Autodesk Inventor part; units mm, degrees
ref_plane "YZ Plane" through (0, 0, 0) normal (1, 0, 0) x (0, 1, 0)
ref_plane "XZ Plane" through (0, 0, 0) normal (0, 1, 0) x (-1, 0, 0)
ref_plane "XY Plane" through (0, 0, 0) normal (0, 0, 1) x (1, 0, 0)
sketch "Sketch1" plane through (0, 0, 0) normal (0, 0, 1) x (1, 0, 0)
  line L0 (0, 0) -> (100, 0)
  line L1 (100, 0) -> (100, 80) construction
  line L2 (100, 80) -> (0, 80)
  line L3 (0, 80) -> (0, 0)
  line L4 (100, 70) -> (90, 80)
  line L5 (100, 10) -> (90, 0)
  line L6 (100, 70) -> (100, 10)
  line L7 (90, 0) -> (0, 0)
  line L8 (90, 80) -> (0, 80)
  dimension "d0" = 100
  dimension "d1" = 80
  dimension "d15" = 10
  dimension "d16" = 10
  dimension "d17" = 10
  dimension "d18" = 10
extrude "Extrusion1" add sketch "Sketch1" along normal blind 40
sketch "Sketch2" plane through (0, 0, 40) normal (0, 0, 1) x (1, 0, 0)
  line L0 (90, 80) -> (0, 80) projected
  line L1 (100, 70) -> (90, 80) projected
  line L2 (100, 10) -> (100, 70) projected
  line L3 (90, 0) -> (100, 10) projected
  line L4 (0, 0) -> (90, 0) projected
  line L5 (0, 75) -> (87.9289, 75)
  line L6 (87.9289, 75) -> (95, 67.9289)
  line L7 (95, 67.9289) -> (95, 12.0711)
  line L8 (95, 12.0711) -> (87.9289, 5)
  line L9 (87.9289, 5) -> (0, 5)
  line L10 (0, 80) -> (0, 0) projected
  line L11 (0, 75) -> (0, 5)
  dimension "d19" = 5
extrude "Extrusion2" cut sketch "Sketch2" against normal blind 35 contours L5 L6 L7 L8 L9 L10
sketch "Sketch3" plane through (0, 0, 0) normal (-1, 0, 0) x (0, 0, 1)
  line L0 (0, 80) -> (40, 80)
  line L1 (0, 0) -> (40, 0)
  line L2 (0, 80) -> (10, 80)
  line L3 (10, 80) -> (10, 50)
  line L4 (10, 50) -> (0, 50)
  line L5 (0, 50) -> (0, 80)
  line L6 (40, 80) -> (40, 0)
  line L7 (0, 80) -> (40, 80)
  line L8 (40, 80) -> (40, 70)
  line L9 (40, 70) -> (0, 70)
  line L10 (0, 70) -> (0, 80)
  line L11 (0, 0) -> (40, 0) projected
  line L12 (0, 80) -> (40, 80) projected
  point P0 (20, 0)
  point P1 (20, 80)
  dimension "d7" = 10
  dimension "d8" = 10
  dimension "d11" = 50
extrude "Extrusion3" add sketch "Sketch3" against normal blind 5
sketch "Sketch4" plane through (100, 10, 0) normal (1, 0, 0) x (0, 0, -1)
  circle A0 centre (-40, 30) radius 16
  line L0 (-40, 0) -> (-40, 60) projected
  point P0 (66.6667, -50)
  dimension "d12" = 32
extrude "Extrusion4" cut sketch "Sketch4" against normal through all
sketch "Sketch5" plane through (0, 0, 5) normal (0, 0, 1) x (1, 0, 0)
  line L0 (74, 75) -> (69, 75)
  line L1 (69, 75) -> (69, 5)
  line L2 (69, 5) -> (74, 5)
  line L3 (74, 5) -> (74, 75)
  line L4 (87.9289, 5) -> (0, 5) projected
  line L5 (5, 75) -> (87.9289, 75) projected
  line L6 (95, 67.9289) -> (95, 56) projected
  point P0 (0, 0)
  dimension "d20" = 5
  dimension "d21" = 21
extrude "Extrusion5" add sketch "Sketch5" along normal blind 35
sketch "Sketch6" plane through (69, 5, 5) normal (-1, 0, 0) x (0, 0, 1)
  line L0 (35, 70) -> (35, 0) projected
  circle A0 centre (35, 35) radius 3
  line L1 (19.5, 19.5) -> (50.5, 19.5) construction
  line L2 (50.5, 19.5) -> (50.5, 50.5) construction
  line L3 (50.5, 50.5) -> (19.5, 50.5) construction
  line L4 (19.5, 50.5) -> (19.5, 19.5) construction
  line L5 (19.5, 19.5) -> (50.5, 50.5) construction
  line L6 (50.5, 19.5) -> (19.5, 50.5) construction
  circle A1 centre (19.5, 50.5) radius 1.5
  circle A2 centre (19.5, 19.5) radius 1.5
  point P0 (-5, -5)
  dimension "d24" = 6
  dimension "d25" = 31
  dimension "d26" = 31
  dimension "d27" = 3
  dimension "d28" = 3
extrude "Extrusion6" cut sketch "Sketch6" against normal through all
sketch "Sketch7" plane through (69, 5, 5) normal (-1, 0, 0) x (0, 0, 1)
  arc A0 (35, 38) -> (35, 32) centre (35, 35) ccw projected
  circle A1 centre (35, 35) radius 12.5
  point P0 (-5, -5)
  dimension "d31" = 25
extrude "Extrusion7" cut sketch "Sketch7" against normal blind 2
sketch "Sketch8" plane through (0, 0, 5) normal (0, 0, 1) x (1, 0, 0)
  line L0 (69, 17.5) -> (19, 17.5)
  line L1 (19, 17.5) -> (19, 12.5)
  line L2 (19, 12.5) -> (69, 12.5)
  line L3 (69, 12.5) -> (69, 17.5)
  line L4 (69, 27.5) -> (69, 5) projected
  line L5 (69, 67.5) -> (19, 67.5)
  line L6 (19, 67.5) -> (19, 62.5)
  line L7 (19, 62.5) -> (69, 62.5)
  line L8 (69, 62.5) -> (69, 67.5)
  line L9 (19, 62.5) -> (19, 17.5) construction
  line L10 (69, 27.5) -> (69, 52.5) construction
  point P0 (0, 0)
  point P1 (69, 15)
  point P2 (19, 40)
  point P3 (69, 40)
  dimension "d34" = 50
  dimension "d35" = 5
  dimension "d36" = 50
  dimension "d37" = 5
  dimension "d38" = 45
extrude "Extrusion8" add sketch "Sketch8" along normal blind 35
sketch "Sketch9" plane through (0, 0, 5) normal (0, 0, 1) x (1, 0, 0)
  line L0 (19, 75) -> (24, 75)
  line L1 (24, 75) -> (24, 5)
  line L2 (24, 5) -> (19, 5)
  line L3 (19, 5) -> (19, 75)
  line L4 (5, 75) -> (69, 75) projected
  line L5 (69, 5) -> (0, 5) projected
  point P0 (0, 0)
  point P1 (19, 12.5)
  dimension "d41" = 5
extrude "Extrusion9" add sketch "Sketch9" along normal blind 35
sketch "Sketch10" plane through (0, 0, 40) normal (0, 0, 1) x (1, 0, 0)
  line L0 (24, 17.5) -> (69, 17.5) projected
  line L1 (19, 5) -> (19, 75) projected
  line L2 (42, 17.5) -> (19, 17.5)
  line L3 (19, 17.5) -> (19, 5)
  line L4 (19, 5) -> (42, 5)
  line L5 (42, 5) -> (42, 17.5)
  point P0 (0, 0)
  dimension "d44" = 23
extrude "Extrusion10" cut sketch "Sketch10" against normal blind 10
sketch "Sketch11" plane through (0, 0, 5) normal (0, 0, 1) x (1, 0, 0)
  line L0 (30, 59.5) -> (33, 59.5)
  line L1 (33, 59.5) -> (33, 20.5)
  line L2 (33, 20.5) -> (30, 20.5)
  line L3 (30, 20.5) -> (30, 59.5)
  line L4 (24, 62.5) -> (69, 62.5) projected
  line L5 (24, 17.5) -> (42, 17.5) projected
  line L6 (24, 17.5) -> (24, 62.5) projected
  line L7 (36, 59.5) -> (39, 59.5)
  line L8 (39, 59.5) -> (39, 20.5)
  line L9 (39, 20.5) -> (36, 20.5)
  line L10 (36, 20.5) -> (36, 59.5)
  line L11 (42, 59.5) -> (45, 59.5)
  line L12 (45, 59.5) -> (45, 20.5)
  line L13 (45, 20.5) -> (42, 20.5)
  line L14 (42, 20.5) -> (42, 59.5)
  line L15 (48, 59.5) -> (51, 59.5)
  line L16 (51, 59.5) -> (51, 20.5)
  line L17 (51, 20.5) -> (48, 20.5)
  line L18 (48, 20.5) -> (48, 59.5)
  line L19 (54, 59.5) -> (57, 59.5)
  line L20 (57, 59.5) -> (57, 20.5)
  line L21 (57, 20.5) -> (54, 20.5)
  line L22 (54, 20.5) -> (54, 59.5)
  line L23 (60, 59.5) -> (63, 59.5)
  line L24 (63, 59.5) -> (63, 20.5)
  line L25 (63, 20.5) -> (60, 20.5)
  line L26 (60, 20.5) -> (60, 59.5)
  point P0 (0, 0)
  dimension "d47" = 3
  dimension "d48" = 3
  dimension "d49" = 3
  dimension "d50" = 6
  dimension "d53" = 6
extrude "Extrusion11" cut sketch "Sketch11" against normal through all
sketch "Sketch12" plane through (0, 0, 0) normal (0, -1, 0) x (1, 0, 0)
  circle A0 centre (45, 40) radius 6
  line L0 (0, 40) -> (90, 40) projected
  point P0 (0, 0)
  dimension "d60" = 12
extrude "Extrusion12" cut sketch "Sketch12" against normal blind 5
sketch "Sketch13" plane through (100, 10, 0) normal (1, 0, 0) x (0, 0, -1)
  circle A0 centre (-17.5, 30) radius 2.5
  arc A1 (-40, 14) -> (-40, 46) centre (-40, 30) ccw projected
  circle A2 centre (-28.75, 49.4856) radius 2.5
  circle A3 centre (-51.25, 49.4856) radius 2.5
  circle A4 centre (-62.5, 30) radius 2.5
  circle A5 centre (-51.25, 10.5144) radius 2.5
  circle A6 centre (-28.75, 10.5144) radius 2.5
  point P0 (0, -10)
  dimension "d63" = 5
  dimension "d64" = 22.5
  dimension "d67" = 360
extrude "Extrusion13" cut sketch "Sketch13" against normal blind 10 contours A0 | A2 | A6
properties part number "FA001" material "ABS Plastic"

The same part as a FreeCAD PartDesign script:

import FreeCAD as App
import Part
import Sketcher
Q = App.Units.Quantity

doc = App.newDocument("Part")
params = doc.addObject("Spreadsheet::Sheet", "Params")
for row, (alias, value) in enumerate([
    ("sketch1_height", "80 mm"),
    ("pad1_length", "40 mm"),
    ("sketch2_height", "70 mm"),
    ("sketch2_length", "10 mm"),
    ("pocket1_length", "35 mm"),
    ("sketch3_width", "10 mm"),
    ("sketch3_width2", "30 mm"),
    ("pad2_length", "5 mm"),
    ("sketch4_diameter", "32 mm"),
    ("sketch5_width", "5 mm"),
    ("sketch5_height", "70 mm"),
    ("pad3_length", "35 mm"),
    ("sketch6_diameter", "6 mm"),
    ("sketch6_diameter2", "3 mm"),
    ("sketch7_diameter", "25 mm"),
    ("pocket4_length", "2 mm"),
    ("sketch8_width", "50 mm"),
    ("sketch8_height", "5 mm"),
    ("pad4_length", "35 mm"),
    ("sketch9_width", "5 mm"),
    ("sketch9_height", "70 mm"),
    ("pad5_length", "35 mm"),
    ("sketch10_width", "23 mm"),
    ("sketch10_height", "12.5 mm"),
    ("pocket5_length", "10 mm"),
    ("sketch11_width", "3 mm"),
    ("sketch11_height", "39 mm"),
    ("sketch12_diameter", "12 mm"),
    ("pocket7_length", "5 mm"),
    ("sketch13_diameter", "5 mm"),
    ("pocket8_length", "10 mm"),
], start=1):
    params.set(f"A{row}", alias)
    params.set(f"B{row}", "=" + value)
    params.setAlias(f"B{row}", alias)

body = doc.addObject("PartDesign::Body", "Body")

# Sketch on XY plane
sketch1 = body.newObject("Sketcher::SketchObject", "Sketch")
sketch1.AttachmentSupport = (doc.getObject("XY_Plane"), [""])
sketch1.MapMode = "FlatFace"
sketch1.addGeometry(Part.LineSegment(App.Vector(0, 80, 0), App.Vector(0, 0, 0)), False)
sketch1.addGeometry(Part.LineSegment(App.Vector(0, 0, 0), App.Vector(90, 0, 0)), False)
sketch1.addGeometry(Part.LineSegment(App.Vector(90, 0, 0), App.Vector(100, 10, 0)), False)
sketch1.addGeometry(Part.LineSegment(App.Vector(100, 10, 0), App.Vector(100, 70, 0)), False)
sketch1.addGeometry(Part.LineSegment(App.Vector(100, 70, 0), App.Vector(90, 80, 0)), False)
sketch1.addGeometry(Part.LineSegment(App.Vector(90, 80, 0), App.Vector(0, 80, 0)), False)
sketch1.addConstraint(Sketcher.Constraint("Coincident", 0, 2, 1, 1))
sketch1.addConstraint(Sketcher.Constraint("Coincident", 1, 2, 2, 1))
sketch1.addConstraint(Sketcher.Constraint("Coincident", 2, 2, 3, 1))
sketch1.addConstraint(Sketcher.Constraint("Coincident", 3, 2, 4, 1))
sketch1.addConstraint(Sketcher.Constraint("Coincident", 4, 2, 5, 1))
sketch1.addConstraint(Sketcher.Constraint("Coincident", 5, 2, 0, 1))
sketch1.addConstraint(Sketcher.Constraint("Vertical", 0))
sketch1.addConstraint(Sketcher.Constraint("Horizontal", 1))
sketch1.addConstraint(Sketcher.Constraint("Vertical", 3))
sketch1.addConstraint(Sketcher.Constraint("Horizontal", 5))
sketch1.addConstraint(Sketcher.Constraint("Coincident", 0, 2, -1, 1))
sketch1.addConstraint(Sketcher.Constraint("Perpendicular", 2, 4))
sketch1.addConstraint(Sketcher.Constraint("Vertical", 1, 2, 4, 2))
sketch1.addConstraint(Sketcher.Constraint("Equal", 2, 4))
sketch1.addConstraint(Sketcher.Constraint("DistanceY", 0, 2, 0, 1, Q("80 mm")))
sketch1.addConstraint(Sketcher.Constraint("DistanceX", -1, 1, 2, 2, Q("100 mm")))
sketch1.addConstraint(Sketcher.Constraint("DistanceY", -1, 1, 2, 2, Q("10 mm")))
sketch1.setExpression("Constraints[14]", "Params.sketch1_height")
pad1 = body.newObject("PartDesign::Pad", "Pad")
pad1.Profile = sketch1
pad1.setExpression("Length", "Params.pad1_length")

# Sketch on XY plane
sketch2 = body.newObject("Sketcher::SketchObject", "Sketch001")
sketch2.AttachmentSupport = (doc.getObject("XY_Plane"), [""])
sketch2.MapMode = "FlatFace"
sketch2.AttachmentOffset = App.Placement(App.Vector(0, 0, 40), App.Rotation())
sketch2.addGeometry(Part.LineSegment(App.Vector(88, 75, 0), App.Vector(0, 75, 0)), False)
sketch2.addGeometry(Part.LineSegment(App.Vector(0, 75, 0), App.Vector(0, 5, 0)), False)
sketch2.addGeometry(Part.LineSegment(App.Vector(0, 5, 0), App.Vector(88, 5, 0)), False)
sketch2.addGeometry(Part.LineSegment(App.Vector(88, 5, 0), App.Vector(95, 12, 0)), False)
sketch2.addGeometry(Part.LineSegment(App.Vector(95, 12, 0), App.Vector(95, 68, 0)), False)
sketch2.addGeometry(Part.LineSegment(App.Vector(95, 68, 0), App.Vector(88, 75, 0)), False)
sketch2.addConstraint(Sketcher.Constraint("Coincident", 0, 2, 1, 1))
sketch2.addConstraint(Sketcher.Constraint("Coincident", 1, 2, 2, 1))
sketch2.addConstraint(Sketcher.Constraint("Coincident", 2, 2, 3, 1))
sketch2.addConstraint(Sketcher.Constraint("Coincident", 3, 2, 4, 1))
sketch2.addConstraint(Sketcher.Constraint("Coincident", 4, 2, 5, 1))
sketch2.addConstraint(Sketcher.Constraint("Coincident", 5, 2, 0, 1))
sketch2.addConstraint(Sketcher.Constraint("Horizontal", 0))
sketch2.addConstraint(Sketcher.Constraint("Vertical", 1))
sketch2.addConstraint(Sketcher.Constraint("Horizontal", 2))
sketch2.addConstraint(Sketcher.Constraint("Vertical", 4))
sketch2.addConstraint(Sketcher.Constraint("PointOnObject", 0, 2, -2))
sketch2.addConstraint(Sketcher.Constraint("Perpendicular", 3, 5))
sketch2.addConstraint(Sketcher.Constraint("Vertical", 2, 2, 5, 2))
sketch2.addConstraint(Sketcher.Constraint("Equal", 3, 5))
sketch2.addConstraint(Sketcher.Constraint("DistanceY", -1, 1, 1, 2, Q("5 mm")))
sketch2.addConstraint(Sketcher.Constraint("DistanceY", 1, 2, 1, 1, Q("70 mm")))
sketch2.addConstraint(Sketcher.Constraint("Distance", 3, Q("10 mm")))
sketch2.addConstraint(Sketcher.Constraint("DistanceX", -1, 1, 3, 2, Q("95 mm")))
sketch2.setExpression("Constraints[15]", "Params.sketch2_height")
sketch2.setExpression("Constraints[16]", "Params.sketch2_length")
pocket1 = body.newObject("PartDesign::Pocket", "Pocket")
pocket1.Profile = sketch2
pocket1.setExpression("Length", "Params.pocket1_length")

# Sketch on YZ plane
sketch3 = body.newObject("Sketcher::SketchObject", "Sketch002")
sketch3.AttachmentSupport = (doc.getObject("YZ_Plane"), [""])
sketch3.MapMode = "FlatFace"
sketch3.addGeometry(Part.LineSegment(App.Vector(80, 0, 0), App.Vector(50, 0, 0)), False)
sketch3.addGeometry(Part.LineSegment(App.Vector(50, 0, 0), App.Vector(50, 10, 0)), False)
sketch3.addGeometry(Part.LineSegment(App.Vector(50, 10, 0), App.Vector(70, 10, 0)), False)
sketch3.addGeometry(Part.LineSegment(App.Vector(70, 10, 0), App.Vector(70, 40, 0)), False)
sketch3.addGeometry(Part.LineSegment(App.Vector(70, 40, 0), App.Vector(80, 40, 0)), False)
sketch3.addGeometry(Part.LineSegment(App.Vector(80, 40, 0), App.Vector(80, 0, 0)), False)
sketch3.addConstraint(Sketcher.Constraint("Coincident", 0, 2, 1, 1))
sketch3.addConstraint(Sketcher.Constraint("Coincident", 1, 2, 2, 1))
sketch3.addConstraint(Sketcher.Constraint("Coincident", 2, 2, 3, 1))
sketch3.addConstraint(Sketcher.Constraint("Coincident", 3, 2, 4, 1))
sketch3.addConstraint(Sketcher.Constraint("Coincident", 4, 2, 5, 1))
sketch3.addConstraint(Sketcher.Constraint("Coincident", 5, 2, 0, 1))
sketch3.addConstraint(Sketcher.Constraint("Horizontal", 0))
sketch3.addConstraint(Sketcher.Constraint("Vertical", 1))
sketch3.addConstraint(Sketcher.Constraint("Horizontal", 2))
sketch3.addConstraint(Sketcher.Constraint("Vertical", 3))
sketch3.addConstraint(Sketcher.Constraint("Horizontal", 4))
sketch3.addConstraint(Sketcher.Constraint("Vertical", 5))
sketch3.addConstraint(Sketcher.Constraint("PointOnObject", 0, 2, -1))
sketch3.addConstraint(Sketcher.Constraint("Equal", 4, 1))
sketch3.addConstraint(Sketcher.Constraint("Equal", 0, 3))
sketch3.addConstraint(Sketcher.Constraint("DistanceX", 4, 1, 4, 2, Q("10 mm")))
sketch3.addConstraint(Sketcher.Constraint("DistanceX", -1, 1, 0, 2, Q("50 mm")))
sketch3.addConstraint(Sketcher.Constraint("DistanceX", 0, 2, 0, 1, Q("30 mm")))
sketch3.setExpression("Constraints[15]", "Params.sketch3_width")
sketch3.setExpression("Constraints[17]", "Params.sketch3_width2")
pad2 = body.newObject("PartDesign::Pad", "Pad001")
pad2.Profile = sketch3
pad2.setExpression("Length", "Params.pad2_length")

# Sketch on YZ plane
sketch4 = body.newObject("Sketcher::SketchObject", "Sketch003")
sketch4.AttachmentSupport = (doc.getObject("YZ_Plane"), [""])
sketch4.MapMode = "FlatFace"
sketch4.AttachmentOffset = App.Placement(App.Vector(0, 0, 100), App.Rotation())
sketch4.addGeometry(Part.Circle(App.Vector(40, 40, 0), App.Vector(0, 0, 1), 16), False)
sketch4.addConstraint(Sketcher.Constraint("Diameter", 0, Q("32 mm")))
sketch4.addConstraint(Sketcher.Constraint("DistanceX", -1, 1, 0, 3, Q("40 mm")))
sketch4.addConstraint(Sketcher.Constraint("DistanceY", -1, 1, 0, 3, Q("40 mm")))
sketch4.setExpression("Constraints[0]", "Params.sketch4_diameter")
pocket2 = body.newObject("PartDesign::Pocket", "Pocket001")
pocket2.Profile = sketch4
pocket2.Type = "ThroughAll"

# Sketch on XY plane
sketch5 = body.newObject("Sketcher::SketchObject", "Sketch004")
sketch5.AttachmentSupport = (doc.getObject("XY_Plane"), [""])
sketch5.MapMode = "FlatFace"
sketch5.AttachmentOffset = App.Placement(App.Vector(0, 0, 5), App.Rotation())
sketch5.addGeometry(Part.LineSegment(App.Vector(74, 5, 0), App.Vector(74, 75, 0)), False)
sketch5.addGeometry(Part.LineSegment(App.Vector(74, 75, 0), App.Vector(69, 75, 0)), False)
sketch5.addGeometry(Part.LineSegment(App.Vector(69, 75, 0), App.Vector(69, 5, 0)), False)
sketch5.addGeometry(Part.LineSegment(App.Vector(69, 5, 0), App.Vector(74, 5, 0)), False)
sketch5.addConstraint(Sketcher.Constraint("Coincident", 0, 2, 1, 1))
sketch5.addConstraint(Sketcher.Constraint("Coincident", 1, 2, 2, 1))
sketch5.addConstraint(Sketcher.Constraint("Coincident", 2, 2, 3, 1))
sketch5.addConstraint(Sketcher.Constraint("Coincident", 3, 2, 0, 1))
sketch5.addConstraint(Sketcher.Constraint("Vertical", 0))
sketch5.addConstraint(Sketcher.Constraint("Horizontal", 1))
sketch5.addConstraint(Sketcher.Constraint("Vertical", 2))
sketch5.addConstraint(Sketcher.Constraint("Horizontal", 3))
sketch5.addConstraint(Sketcher.Constraint("DistanceX", 1, 2, 1, 1, Q("5 mm")))
sketch5.addConstraint(Sketcher.Constraint("DistanceY", -1, 1, 2, 2, Q("5 mm")))
sketch5.addConstraint(Sketcher.Constraint("DistanceY", 0, 1, 0, 2, Q("70 mm")))
sketch5.addConstraint(Sketcher.Constraint("DistanceX", -1, 1, 0, 2, Q("74 mm")))
sketch5.setExpression("Constraints[8]", "Params.sketch5_width")
sketch5.setExpression("Constraints[10]", "Params.sketch5_height")
pad3 = body.newObject("PartDesign::Pad", "Pad002")
pad3.Profile = sketch5
pad3.setExpression("Length", "Params.pad3_length")

# Sketch on YZ plane
sketch6 = body.newObject("Sketcher::SketchObject", "Sketch005")
sketch6.AttachmentSupport = (doc.getObject("YZ_Plane"), [""])
sketch6.MapMode = "FlatFace"
sketch6.AttachmentOffset = App.Placement(App.Vector(0, 0, 69), App.Rotation())
sketch6.addGeometry(Part.Circle(App.Vector(40, 40, 0), App.Vector(0, 0, 1), 3), False)
sketch6.addGeometry(Part.Circle(App.Vector(55.5, 24.5, 0), App.Vector(0, 0, 1), 1.5), False)
sketch6.addGeometry(Part.Circle(App.Vector(24.5, 24.5, 0), App.Vector(0, 0, 1), 1.5), False)
sketch6.addConstraint(Sketcher.Constraint("Equal", 1, 2))
sketch6.addConstraint(Sketcher.Constraint("Horizontal", 1, 3, 2, 3))
sketch6.addConstraint(Sketcher.Constraint("Diameter", 0, Q("6 mm")))
sketch6.addConstraint(Sketcher.Constraint("Diameter", 1, Q("3 mm")))
sketch6.addConstraint(Sketcher.Constraint("DistanceX", 2, 3, 1, 3, Q("31 mm")))
sketch6.addConstraint(Sketcher.Constraint("DistanceX", -1, 1, 0, 3, Q("40 mm")))
sketch6.addConstraint(Sketcher.Constraint("DistanceY", -1, 1, 0, 3, Q("40 mm")))
sketch6.addConstraint(Sketcher.Constraint("DistanceX", -1, 1, 1, 3, Q("55.5 mm")))
sketch6.addConstraint(Sketcher.Constraint("DistanceY", -1, 1, 1, 3, Q("24.5 mm")))
sketch6.setExpression("Constraints[2]", "Params.sketch6_diameter")
sketch6.setExpression("Constraints[3]", "Params.sketch6_diameter2")
pocket3 = body.newObject("PartDesign::Pocket", "Pocket002")
pocket3.Profile = sketch6
pocket3.Type = "ThroughAll"
pocket3.Reversed = True

# Sketch on YZ plane
sketch7 = body.newObject("Sketcher::SketchObject", "Sketch006")
sketch7.AttachmentSupport = (doc.getObject("YZ_Plane"), [""])
sketch7.MapMode = "FlatFace"
sketch7.AttachmentOffset = App.Placement(App.Vector(0, 0, 69), App.Rotation())
sketch7.addGeometry(Part.Circle(App.Vector(40, 40, 0), App.Vector(0, 0, 1), 12), False)
sketch7.addConstraint(Sketcher.Constraint("Diameter", 0, Q("25 mm")))
sketch7.addConstraint(Sketcher.Constraint("DistanceX", -1, 1, 0, 3, Q("40 mm")))
sketch7.addConstraint(Sketcher.Constraint("DistanceY", -1, 1, 0, 3, Q("40 mm")))
sketch7.setExpression("Constraints[0]", "Params.sketch7_diameter")
pocket4 = body.newObject("PartDesign::Pocket", "Pocket003")
pocket4.Profile = sketch7
pocket4.setExpression("Length", "Params.pocket4_length")
pocket4.Reversed = True

# Sketch on XY plane
sketch8 = body.newObject("Sketcher::SketchObject", "Sketch007")
sketch8.AttachmentSupport = (doc.getObject("XY_Plane"), [""])
sketch8.MapMode = "FlatFace"
sketch8.AttachmentOffset = App.Placement(App.Vector(0, 0, 5), App.Rotation())
sketch8.addGeometry(Part.LineSegment(App.Vector(69, 12, 0), App.Vector(69, 18, 0)), False)
sketch8.addGeometry(Part.LineSegment(App.Vector(69, 18, 0), App.Vector(19, 18, 0)), False)
sketch8.addGeometry(Part.LineSegment(App.Vector(19, 18, 0), App.Vector(19, 12, 0)), False)
sketch8.addGeometry(Part.LineSegment(App.Vector(19, 12, 0), App.Vector(69, 12, 0)), False)
sketch8.addGeometry(Part.LineSegment(App.Vector(69, 62, 0), App.Vector(69, 68, 0)), False)
sketch8.addGeometry(Part.LineSegment(App.Vector(69, 68, 0), App.Vector(19, 68, 0)), False)
sketch8.addGeometry(Part.LineSegment(App.Vector(19, 68, 0), App.Vector(19, 62, 0)), False)
sketch8.addGeometry(Part.LineSegment(App.Vector(19, 62, 0), App.Vector(69, 62, 0)), False)
sketch8.addConstraint(Sketcher.Constraint("Coincident", 0, 2, 1, 1))
sketch8.addConstraint(Sketcher.Constraint("Coincident", 1, 2, 2, 1))
sketch8.addConstraint(Sketcher.Constraint("Coincident", 2, 2, 3, 1))
sketch8.addConstraint(Sketcher.Constraint("Coincident", 3, 2, 0, 1))
sketch8.addConstraint(Sketcher.Constraint("Coincident", 4, 2, 5, 1))
sketch8.addConstraint(Sketcher.Constraint("Coincident", 5, 2, 6, 1))
sketch8.addConstraint(Sketcher.Constraint("Coincident", 6, 2, 7, 1))
sketch8.addConstraint(Sketcher.Constraint("Coincident", 7, 2, 4, 1))
sketch8.addConstraint(Sketcher.Constraint("Vertical", 0))
sketch8.addConstraint(Sketcher.Constraint("Horizontal", 1))
sketch8.addConstraint(Sketcher.Constraint("Vertical", 2))
sketch8.addConstraint(Sketcher.Constraint("Horizontal", 3))
sketch8.addConstraint(Sketcher.Constraint("Vertical", 4))
sketch8.addConstraint(Sketcher.Constraint("Horizontal", 5))
sketch8.addConstraint(Sketcher.Constraint("Vertical", 6))
sketch8.addConstraint(Sketcher.Constraint("Horizontal", 7))
sketch8.addConstraint(Sketcher.Constraint("Vertical", 3, 2, 4, 2))
sketch8.addConstraint(Sketcher.Constraint("Vertical", 2, 2, 5, 2))
sketch8.addConstraint(Sketcher.Constraint("Equal", 2, 4))
sketch8.addConstraint(Sketcher.Constraint("DistanceX", 1, 2, 1, 1, Q("50 mm")))
sketch8.addConstraint(Sketcher.Constraint("DistanceY", 0, 1, 0, 2, Q("5 mm")))
sketch8.addConstraint(Sketcher.Constraint("DistanceY", 0, 2, 4, 2, Q("50 mm")))
sketch8.addConstraint(Sketcher.Constraint("DistanceX", -1, 1, 0, 2, Q("69 mm")))
sketch8.addConstraint(Sketcher.Constraint("DistanceY", -1, 1, 0, 2, Q("17.5 mm")))
sketch8.setExpression("Constraints[19]", "Params.sketch8_width")
sketch8.setExpression("Constraints[20]", "Params.sketch8_height")
pad4 = body.newObject("PartDesign::Pad", "Pad003")
pad4.Profile = sketch8
pad4.setExpression("Length", "Params.pad4_length")

# Sketch on XY plane
sketch9 = body.newObject("Sketcher::SketchObject", "Sketch008")
sketch9.AttachmentSupport = (doc.getObject("XY_Plane"), [""])
sketch9.MapMode = "FlatFace"
sketch9.AttachmentOffset = App.Placement(App.Vector(0, 0, 5), App.Rotation())
sketch9.addGeometry(Part.LineSegment(App.Vector(24, 75, 0), App.Vector(19, 75, 0)), False)
sketch9.addGeometry(Part.LineSegment(App.Vector(19, 75, 0), App.Vector(19, 5, 0)), False)
sketch9.addGeometry(Part.LineSegment(App.Vector(19, 5, 0), App.Vector(24, 5, 0)), False)
sketch9.addGeometry(Part.LineSegment(App.Vector(24, 5, 0), App.Vector(24, 75, 0)), False)
sketch9.addConstraint(Sketcher.Constraint("Coincident", 0, 2, 1, 1))
sketch9.addConstraint(Sketcher.Constraint("Coincident", 1, 2, 2, 1))
sketch9.addConstraint(Sketcher.Constraint("Coincident", 2, 2, 3, 1))
sketch9.addConstraint(Sketcher.Constraint("Coincident", 3, 2, 0, 1))
sketch9.addConstraint(Sketcher.Constraint("Horizontal", 0))
sketch9.addConstraint(Sketcher.Constraint("Vertical", 1))
sketch9.addConstraint(Sketcher.Constraint("Horizontal", 2))
sketch9.addConstraint(Sketcher.Constraint("Vertical", 3))
sketch9.addConstraint(Sketcher.Constraint("DistanceX", 0, 2, 0, 1, Q("5 mm")))
sketch9.addConstraint(Sketcher.Constraint("DistanceY", -1, 1, 1, 2, Q("5 mm")))
sketch9.addConstraint(Sketcher.Constraint("DistanceY", 1, 2, 1, 1, Q("70 mm")))
sketch9.addConstraint(Sketcher.Constraint("DistanceX", -1, 1, 0, 2, Q("19 mm")))
sketch9.setExpression("Constraints[8]", "Params.sketch9_width")
sketch9.setExpression("Constraints[10]", "Params.sketch9_height")
pad5 = body.newObject("PartDesign::Pad", "Pad004")
pad5.Profile = sketch9
pad5.setExpression("Length", "Params.pad5_length")

# Sketch on XY plane
sketch10 = body.newObject("Sketcher::SketchObject", "Sketch009")
sketch10.AttachmentSupport = (doc.getObject("XY_Plane"), [""])
sketch10.MapMode = "FlatFace"
sketch10.AttachmentOffset = App.Placement(App.Vector(0, 0, 40), App.Rotation())
sketch10.addGeometry(Part.LineSegment(App.Vector(42, 18, 0), App.Vector(19, 18, 0)), False)
sketch10.addGeometry(Part.LineSegment(App.Vector(19, 18, 0), App.Vector(19, 5, 0)), False)
sketch10.addGeometry(Part.LineSegment(App.Vector(19, 5, 0), App.Vector(42, 5, 0)), False)
sketch10.addGeometry(Part.LineSegment(App.Vector(42, 5, 0), App.Vector(42, 18, 0)), False)
sketch10.addConstraint(Sketcher.Constraint("Coincident", 0, 2, 1, 1))
sketch10.addConstraint(Sketcher.Constraint("Coincident", 1, 2, 2, 1))
sketch10.addConstraint(Sketcher.Constraint("Coincident", 2, 2, 3, 1))
sketch10.addConstraint(Sketcher.Constraint("Coincident", 3, 2, 0, 1))
sketch10.addConstraint(Sketcher.Constraint("Horizontal", 0))
sketch10.addConstraint(Sketcher.Constraint("Vertical", 1))
sketch10.addConstraint(Sketcher.Constraint("Horizontal", 2))
sketch10.addConstraint(Sketcher.Constraint("Vertical", 3))
sketch10.addConstraint(Sketcher.Constraint("DistanceX", 0, 2, 0, 1, Q("23 mm")))
sketch10.addConstraint(Sketcher.Constraint("DistanceY", 1, 2, 1, 1, Q("12.5 mm")))
sketch10.addConstraint(Sketcher.Constraint("DistanceX", -1, 1, 0, 2, Q("19 mm")))
sketch10.addConstraint(Sketcher.Constraint("DistanceY", -1, 1, 1, 2, Q("5 mm")))
sketch10.setExpression("Constraints[8]", "Params.sketch10_width")
sketch10.setExpression("Constraints[9]", "Params.sketch10_height")
pocket5 = body.newObject("PartDesign::Pocket", "Pocket004")
pocket5.Profile = sketch10
pocket5.setExpression("Length", "Params.pocket5_length")

# Sketch on XY plane
sketch11 = body.newObject("Sketcher::SketchObject", "Sketch010")
sketch11.AttachmentSupport = (doc.getObject("XY_Plane"), [""])
sketch11.MapMode = "FlatFace"
sketch11.AttachmentOffset = App.Placement(App.Vector(0, 0, 5), App.Rotation())
sketch11.addGeometry(Part.LineSegment(App.Vector(33, 59.5, 0), App.Vector(30, 59.5, 0)), False)
sketch11.addGeometry(Part.LineSegment(App.Vector(30, 59.5, 0), App.Vector(30, 20.5, 0)), False)
sketch11.addGeometry(Part.LineSegment(App.Vector(30, 20.5, 0), App.Vector(33, 20.5, 0)), False)
sketch11.addGeometry(Part.LineSegment(App.Vector(33, 20.5, 0), App.Vector(33, 59.5, 0)), False)
sketch11.addGeometry(Part.LineSegment(App.Vector(39, 59.5, 0), App.Vector(36, 59.5, 0)), False)
sketch11.addGeometry(Part.LineSegment(App.Vector(36, 59.5, 0), App.Vector(36, 20.5, 0)), False)
sketch11.addGeometry(Part.LineSegment(App.Vector(36, 20.5, 0), App.Vector(39, 20.5, 0)), False)
sketch11.addGeometry(Part.LineSegment(App.Vector(39, 20.5, 0), App.Vector(39, 59.5, 0)), False)
sketch11.addGeometry(Part.LineSegment(App.Vector(45, 59.5, 0), App.Vector(42, 59.5, 0)), False)
sketch11.addGeometry(Part.LineSegment(App.Vector(42, 59.5, 0), App.Vector(42, 20.5, 0)), False)
sketch11.addGeometry(Part.LineSegment(App.Vector(42, 20.5, 0), App.Vector(45, 20.5, 0)), False)
sketch11.addGeometry(Part.LineSegment(App.Vector(45, 20.5, 0), App.Vector(45, 59.5, 0)), False)
sketch11.addGeometry(Part.LineSegment(App.Vector(51, 59.5, 0), App.Vector(48, 59.5, 0)), False)
sketch11.addGeometry(Part.LineSegment(App.Vector(48, 59.5, 0), App.Vector(48, 20.5, 0)), False)
sketch11.addGeometry(Part.LineSegment(App.Vector(48, 20.5, 0), App.Vector(51, 20.5, 0)), False)
sketch11.addGeometry(Part.LineSegment(App.Vector(51, 20.5, 0), App.Vector(51, 59.5, 0)), False)
sketch11.addGeometry(Part.LineSegment(App.Vector(57, 59.5, 0), App.Vector(54, 59.5, 0)), False)
sketch11.addGeometry(Part.LineSegment(App.Vector(54, 59.5, 0), App.Vector(54, 20.5, 0)), False)
sketch11.addGeometry(Part.LineSegment(App.Vector(54, 20.5, 0), App.Vector(57, 20.5, 0)), False)
sketch11.addGeometry(Part.LineSegment(App.Vector(57, 20.5, 0), App.Vector(57, 59.5, 0)), False)
sketch11.addGeometry(Part.LineSegment(App.Vector(63, 59.5, 0), App.Vector(60, 59.5, 0)), False)
sketch11.addGeometry(Part.LineSegment(App.Vector(60, 59.5, 0), App.Vector(60, 20.5, 0)), False)
sketch11.addGeometry(Part.LineSegment(App.Vector(60, 20.5, 0), App.Vector(63, 20.5, 0)), False)
sketch11.addGeometry(Part.LineSegment(App.Vector(63, 20.5, 0), App.Vector(63, 59.5, 0)), False)
sketch11.addConstraint(Sketcher.Constraint("Coincident", 0, 2, 1, 1))
sketch11.addConstraint(Sketcher.Constraint("Coincident", 1, 2, 2, 1))
sketch11.addConstraint(Sketcher.Constraint("Coincident", 2, 2, 3, 1))
sketch11.addConstraint(Sketcher.Constraint("Coincident", 3, 2, 0, 1))
sketch11.addConstraint(Sketcher.Constraint("Coincident", 4, 2, 5, 1))
sketch11.addConstraint(Sketcher.Constraint("Coincident", 5, 2, 6, 1))
sketch11.addConstraint(Sketcher.Constraint("Coincident", 6, 2, 7, 1))
sketch11.addConstraint(Sketcher.Constraint("Coincident", 7, 2, 4, 1))
sketch11.addConstraint(Sketcher.Constraint("Coincident", 8, 2, 9, 1))
sketch11.addConstraint(Sketcher.Constraint("Coincident", 9, 2, 10, 1))
sketch11.addConstraint(Sketcher.Constraint("Coincident", 10, 2, 11, 1))
sketch11.addConstraint(Sketcher.Constraint("Coincident", 11, 2, 8, 1))
sketch11.addConstraint(Sketcher.Constraint("Coincident", 12, 2, 13, 1))
sketch11.addConstraint(Sketcher.Constraint("Coincident", 13, 2, 14, 1))
sketch11.addConstraint(Sketcher.Constraint("Coincident", 14, 2, 15, 1))
sketch11.addConstraint(Sketcher.Constraint("Coincident", 15, 2, 12, 1))
sketch11.addConstraint(Sketcher.Constraint("Coincident", 16, 2, 17, 1))
sketch11.addConstraint(Sketcher.Constraint("Coincident", 17, 2, 18, 1))
sketch11.addConstraint(Sketcher.Constraint("Coincident", 18, 2, 19, 1))
sketch11.addConstraint(Sketcher.Constraint("Coincident", 19, 2, 16, 1))
sketch11.addConstraint(Sketcher.Constraint("Coincident", 20, 2, 21, 1))
sketch11.addConstraint(Sketcher.Constraint("Coincident", 21, 2, 22, 1))
sketch11.addConstraint(Sketcher.Constraint("Coincident", 22, 2, 23, 1))
sketch11.addConstraint(Sketcher.Constraint("Coincident", 23, 2, 20, 1))
sketch11.addConstraint(Sketcher.Constraint("Horizontal", 0))
sketch11.addConstraint(Sketcher.Constraint("Vertical", 1))
sketch11.addConstraint(Sketcher.Constraint("Horizontal", 2))
sketch11.addConstraint(Sketcher.Constraint("Vertical", 3))
sketch11.addConstraint(Sketcher.Constraint("Horizontal", 4))
sketch11.addConstraint(Sketcher.Constraint("Vertical", 5))
sketch11.addConstraint(Sketcher.Constraint("Horizontal", 6))
sketch11.addConstraint(Sketcher.Constraint("Vertical", 7))
sketch11.addConstraint(Sketcher.Constraint("Horizontal", 8))
sketch11.addConstraint(Sketcher.Constraint("Vertical", 9))
sketch11.addConstraint(Sketcher.Constraint("Horizontal", 10))
sketch11.addConstraint(Sketcher.Constraint("Vertical", 11))
sketch11.addConstraint(Sketcher.Constraint("Horizontal", 12))
sketch11.addConstraint(Sketcher.Constraint("Vertical", 13))
sketch11.addConstraint(Sketcher.Constraint("Horizontal", 14))
sketch11.addConstraint(Sketcher.Constraint("Vertical", 15))
sketch11.addConstraint(Sketcher.Constraint("Horizontal", 16))
sketch11.addConstraint(Sketcher.Constraint("Vertical", 17))
sketch11.addConstraint(Sketcher.Constraint("Horizontal", 18))
sketch11.addConstraint(Sketcher.Constraint("Vertical", 19))
sketch11.addConstraint(Sketcher.Constraint("Horizontal", 20))
sketch11.addConstraint(Sketcher.Constraint("Vertical", 21))
sketch11.addConstraint(Sketcher.Constraint("Horizontal", 22))
sketch11.addConstraint(Sketcher.Constraint("Vertical", 23))
sketch11.addConstraint(Sketcher.Constraint("Horizontal", 3, 2, 4, 2))
sketch11.addConstraint(Sketcher.Constraint("Horizontal", 2, 2, 5, 2))
sketch11.addConstraint(Sketcher.Constraint("Horizontal", 7, 2, 8, 2))
sketch11.addConstraint(Sketcher.Constraint("Horizontal", 6, 2, 9, 2))
sketch11.addConstraint(Sketcher.Constraint("Horizontal", 11, 2, 12, 2))
sketch11.addConstraint(Sketcher.Constraint("Horizontal", 10, 2, 13, 2))
sketch11.addConstraint(Sketcher.Constraint("Horizontal", 15, 2, 16, 2))
sketch11.addConstraint(Sketcher.Constraint("Horizontal", 14, 2, 17, 2))
sketch11.addConstraint(Sketcher.Constraint("Horizontal", 19, 2, 20, 2))
sketch11.addConstraint(Sketcher.Constraint("Horizontal", 18, 2, 21, 2))
sketch11.addConstraint(Sketcher.Constraint("Equal", 2, 4))
sketch11.addConstraint(Sketcher.Constraint("Equal", 6, 8))
sketch11.addConstraint(Sketcher.Constraint("Equal", 10, 12))
sketch11.addConstraint(Sketcher.Constraint("Equal", 14, 16))
sketch11.addConstraint(Sketcher.Constraint("Equal", 18, 20))
sketch11.addConstraint(Sketcher.Constraint("DistanceX", 0, 2, 0, 1, Q("3 mm")))
sketch11.addConstraint(Sketcher.Constraint("DistanceX", 3, 2, 4, 2, Q("3 mm")))
sketch11.addConstraint(Sketcher.Constraint("DistanceX", 7, 2, 8, 2, Q("3 mm")))
sketch11.addConstraint(Sketcher.Constraint("DistanceX", 11, 2, 12, 2, Q("3 mm")))
sketch11.addConstraint(Sketcher.Constraint("DistanceX", 15, 2, 16, 2, Q("3 mm")))
sketch11.addConstraint(Sketcher.Constraint("DistanceX", 19, 2, 20, 2, Q("3 mm")))
sketch11.addConstraint(Sketcher.Constraint("DistanceY", 1, 2, 1, 1, Q("39 mm")))
sketch11.addConstraint(Sketcher.Constraint("DistanceX", -1, 1, 0, 2, Q("30 mm")))
sketch11.addConstraint(Sketcher.Constraint("DistanceY", -1, 1, 0, 2, Q("59.5 mm")))
sketch11.setExpression("Constraints[63]", "Params.sketch11_width")
sketch11.setExpression("Constraints[69]", "Params.sketch11_height")
pocket6 = body.newObject("PartDesign::Pocket", "Pocket005")
pocket6.Profile = sketch11
pocket6.Type = "ThroughAll"

# Sketch on XZ plane
sketch12 = body.newObject("Sketcher::SketchObject", "Sketch011")
sketch12.AttachmentSupport = (doc.getObject("XZ_Plane"), [""])
sketch12.MapMode = "FlatFace"
sketch12.addGeometry(Part.Circle(App.Vector(45, 40, 0), App.Vector(0, 0, 1), 6), False)
sketch12.addConstraint(Sketcher.Constraint("Diameter", 0, Q("12 mm")))
sketch12.addConstraint(Sketcher.Constraint("DistanceX", -1, 1, 0, 3, Q("45 mm")))
sketch12.addConstraint(Sketcher.Constraint("DistanceY", -1, 1, 0, 3, Q("40 mm")))
sketch12.setExpression("Constraints[0]", "Params.sketch12_diameter")
pocket7 = body.newObject("PartDesign::Pocket", "Pocket006")
pocket7.Profile = sketch12
pocket7.setExpression("Length", "Params.pocket7_length")

# Sketch on YZ plane
sketch13 = body.newObject("Sketcher::SketchObject", "Sketch012")
sketch13.AttachmentSupport = (doc.getObject("YZ_Plane"), [""])
sketch13.MapMode = "FlatFace"
sketch13.AttachmentOffset = App.Placement(App.Vector(0, 0, 100), App.Rotation())
sketch13.addGeometry(Part.Circle(App.Vector(40, 17.5, 0), App.Vector(0, 0, 1), 2.5), False)
sketch13.addGeometry(Part.Circle(App.Vector(59.5, 28.8, 0), App.Vector(0, 0, 1), 2.5), False)
sketch13.addGeometry(Part.Circle(App.Vector(20.5, 28.8, 0), App.Vector(0, 0, 1), 2.5), False)
sketch13.addConstraint(Sketcher.Constraint("Equal", 0, 1))
sketch13.addConstraint(Sketcher.Constraint("Equal", 1, 2))
sketch13.addConstraint(Sketcher.Constraint("Horizontal", 1, 3, 2, 3))
sketch13.addConstraint(Sketcher.Constraint("Diameter", 0, Q("5 mm")))
sketch13.addConstraint(Sketcher.Constraint("DistanceX", -1, 1, 0, 3, Q("40 mm")))
sketch13.addConstraint(Sketcher.Constraint("DistanceY", -1, 1, 0, 3, Q("17.5 mm")))
sketch13.addConstraint(Sketcher.Constraint("DistanceY", -1, 1, 1, 3, Q("28.75 mm")))
sketch13.addConstraint(Sketcher.Constraint("DistanceX", -1, 1, 1, 3, Q("59.4856 mm")))
sketch13.addConstraint(Sketcher.Constraint("DistanceX", -1, 1, 2, 3, Q("20.5144 mm")))
sketch13.setExpression("Constraints[3]", "Params.sketch13_diameter")
pocket8 = body.newObject("PartDesign::Pocket", "Pocket007")
pocket8.Profile = sketch13
pocket8.setExpression("Length", "Params.pocket8_length")

doc.recompute()
